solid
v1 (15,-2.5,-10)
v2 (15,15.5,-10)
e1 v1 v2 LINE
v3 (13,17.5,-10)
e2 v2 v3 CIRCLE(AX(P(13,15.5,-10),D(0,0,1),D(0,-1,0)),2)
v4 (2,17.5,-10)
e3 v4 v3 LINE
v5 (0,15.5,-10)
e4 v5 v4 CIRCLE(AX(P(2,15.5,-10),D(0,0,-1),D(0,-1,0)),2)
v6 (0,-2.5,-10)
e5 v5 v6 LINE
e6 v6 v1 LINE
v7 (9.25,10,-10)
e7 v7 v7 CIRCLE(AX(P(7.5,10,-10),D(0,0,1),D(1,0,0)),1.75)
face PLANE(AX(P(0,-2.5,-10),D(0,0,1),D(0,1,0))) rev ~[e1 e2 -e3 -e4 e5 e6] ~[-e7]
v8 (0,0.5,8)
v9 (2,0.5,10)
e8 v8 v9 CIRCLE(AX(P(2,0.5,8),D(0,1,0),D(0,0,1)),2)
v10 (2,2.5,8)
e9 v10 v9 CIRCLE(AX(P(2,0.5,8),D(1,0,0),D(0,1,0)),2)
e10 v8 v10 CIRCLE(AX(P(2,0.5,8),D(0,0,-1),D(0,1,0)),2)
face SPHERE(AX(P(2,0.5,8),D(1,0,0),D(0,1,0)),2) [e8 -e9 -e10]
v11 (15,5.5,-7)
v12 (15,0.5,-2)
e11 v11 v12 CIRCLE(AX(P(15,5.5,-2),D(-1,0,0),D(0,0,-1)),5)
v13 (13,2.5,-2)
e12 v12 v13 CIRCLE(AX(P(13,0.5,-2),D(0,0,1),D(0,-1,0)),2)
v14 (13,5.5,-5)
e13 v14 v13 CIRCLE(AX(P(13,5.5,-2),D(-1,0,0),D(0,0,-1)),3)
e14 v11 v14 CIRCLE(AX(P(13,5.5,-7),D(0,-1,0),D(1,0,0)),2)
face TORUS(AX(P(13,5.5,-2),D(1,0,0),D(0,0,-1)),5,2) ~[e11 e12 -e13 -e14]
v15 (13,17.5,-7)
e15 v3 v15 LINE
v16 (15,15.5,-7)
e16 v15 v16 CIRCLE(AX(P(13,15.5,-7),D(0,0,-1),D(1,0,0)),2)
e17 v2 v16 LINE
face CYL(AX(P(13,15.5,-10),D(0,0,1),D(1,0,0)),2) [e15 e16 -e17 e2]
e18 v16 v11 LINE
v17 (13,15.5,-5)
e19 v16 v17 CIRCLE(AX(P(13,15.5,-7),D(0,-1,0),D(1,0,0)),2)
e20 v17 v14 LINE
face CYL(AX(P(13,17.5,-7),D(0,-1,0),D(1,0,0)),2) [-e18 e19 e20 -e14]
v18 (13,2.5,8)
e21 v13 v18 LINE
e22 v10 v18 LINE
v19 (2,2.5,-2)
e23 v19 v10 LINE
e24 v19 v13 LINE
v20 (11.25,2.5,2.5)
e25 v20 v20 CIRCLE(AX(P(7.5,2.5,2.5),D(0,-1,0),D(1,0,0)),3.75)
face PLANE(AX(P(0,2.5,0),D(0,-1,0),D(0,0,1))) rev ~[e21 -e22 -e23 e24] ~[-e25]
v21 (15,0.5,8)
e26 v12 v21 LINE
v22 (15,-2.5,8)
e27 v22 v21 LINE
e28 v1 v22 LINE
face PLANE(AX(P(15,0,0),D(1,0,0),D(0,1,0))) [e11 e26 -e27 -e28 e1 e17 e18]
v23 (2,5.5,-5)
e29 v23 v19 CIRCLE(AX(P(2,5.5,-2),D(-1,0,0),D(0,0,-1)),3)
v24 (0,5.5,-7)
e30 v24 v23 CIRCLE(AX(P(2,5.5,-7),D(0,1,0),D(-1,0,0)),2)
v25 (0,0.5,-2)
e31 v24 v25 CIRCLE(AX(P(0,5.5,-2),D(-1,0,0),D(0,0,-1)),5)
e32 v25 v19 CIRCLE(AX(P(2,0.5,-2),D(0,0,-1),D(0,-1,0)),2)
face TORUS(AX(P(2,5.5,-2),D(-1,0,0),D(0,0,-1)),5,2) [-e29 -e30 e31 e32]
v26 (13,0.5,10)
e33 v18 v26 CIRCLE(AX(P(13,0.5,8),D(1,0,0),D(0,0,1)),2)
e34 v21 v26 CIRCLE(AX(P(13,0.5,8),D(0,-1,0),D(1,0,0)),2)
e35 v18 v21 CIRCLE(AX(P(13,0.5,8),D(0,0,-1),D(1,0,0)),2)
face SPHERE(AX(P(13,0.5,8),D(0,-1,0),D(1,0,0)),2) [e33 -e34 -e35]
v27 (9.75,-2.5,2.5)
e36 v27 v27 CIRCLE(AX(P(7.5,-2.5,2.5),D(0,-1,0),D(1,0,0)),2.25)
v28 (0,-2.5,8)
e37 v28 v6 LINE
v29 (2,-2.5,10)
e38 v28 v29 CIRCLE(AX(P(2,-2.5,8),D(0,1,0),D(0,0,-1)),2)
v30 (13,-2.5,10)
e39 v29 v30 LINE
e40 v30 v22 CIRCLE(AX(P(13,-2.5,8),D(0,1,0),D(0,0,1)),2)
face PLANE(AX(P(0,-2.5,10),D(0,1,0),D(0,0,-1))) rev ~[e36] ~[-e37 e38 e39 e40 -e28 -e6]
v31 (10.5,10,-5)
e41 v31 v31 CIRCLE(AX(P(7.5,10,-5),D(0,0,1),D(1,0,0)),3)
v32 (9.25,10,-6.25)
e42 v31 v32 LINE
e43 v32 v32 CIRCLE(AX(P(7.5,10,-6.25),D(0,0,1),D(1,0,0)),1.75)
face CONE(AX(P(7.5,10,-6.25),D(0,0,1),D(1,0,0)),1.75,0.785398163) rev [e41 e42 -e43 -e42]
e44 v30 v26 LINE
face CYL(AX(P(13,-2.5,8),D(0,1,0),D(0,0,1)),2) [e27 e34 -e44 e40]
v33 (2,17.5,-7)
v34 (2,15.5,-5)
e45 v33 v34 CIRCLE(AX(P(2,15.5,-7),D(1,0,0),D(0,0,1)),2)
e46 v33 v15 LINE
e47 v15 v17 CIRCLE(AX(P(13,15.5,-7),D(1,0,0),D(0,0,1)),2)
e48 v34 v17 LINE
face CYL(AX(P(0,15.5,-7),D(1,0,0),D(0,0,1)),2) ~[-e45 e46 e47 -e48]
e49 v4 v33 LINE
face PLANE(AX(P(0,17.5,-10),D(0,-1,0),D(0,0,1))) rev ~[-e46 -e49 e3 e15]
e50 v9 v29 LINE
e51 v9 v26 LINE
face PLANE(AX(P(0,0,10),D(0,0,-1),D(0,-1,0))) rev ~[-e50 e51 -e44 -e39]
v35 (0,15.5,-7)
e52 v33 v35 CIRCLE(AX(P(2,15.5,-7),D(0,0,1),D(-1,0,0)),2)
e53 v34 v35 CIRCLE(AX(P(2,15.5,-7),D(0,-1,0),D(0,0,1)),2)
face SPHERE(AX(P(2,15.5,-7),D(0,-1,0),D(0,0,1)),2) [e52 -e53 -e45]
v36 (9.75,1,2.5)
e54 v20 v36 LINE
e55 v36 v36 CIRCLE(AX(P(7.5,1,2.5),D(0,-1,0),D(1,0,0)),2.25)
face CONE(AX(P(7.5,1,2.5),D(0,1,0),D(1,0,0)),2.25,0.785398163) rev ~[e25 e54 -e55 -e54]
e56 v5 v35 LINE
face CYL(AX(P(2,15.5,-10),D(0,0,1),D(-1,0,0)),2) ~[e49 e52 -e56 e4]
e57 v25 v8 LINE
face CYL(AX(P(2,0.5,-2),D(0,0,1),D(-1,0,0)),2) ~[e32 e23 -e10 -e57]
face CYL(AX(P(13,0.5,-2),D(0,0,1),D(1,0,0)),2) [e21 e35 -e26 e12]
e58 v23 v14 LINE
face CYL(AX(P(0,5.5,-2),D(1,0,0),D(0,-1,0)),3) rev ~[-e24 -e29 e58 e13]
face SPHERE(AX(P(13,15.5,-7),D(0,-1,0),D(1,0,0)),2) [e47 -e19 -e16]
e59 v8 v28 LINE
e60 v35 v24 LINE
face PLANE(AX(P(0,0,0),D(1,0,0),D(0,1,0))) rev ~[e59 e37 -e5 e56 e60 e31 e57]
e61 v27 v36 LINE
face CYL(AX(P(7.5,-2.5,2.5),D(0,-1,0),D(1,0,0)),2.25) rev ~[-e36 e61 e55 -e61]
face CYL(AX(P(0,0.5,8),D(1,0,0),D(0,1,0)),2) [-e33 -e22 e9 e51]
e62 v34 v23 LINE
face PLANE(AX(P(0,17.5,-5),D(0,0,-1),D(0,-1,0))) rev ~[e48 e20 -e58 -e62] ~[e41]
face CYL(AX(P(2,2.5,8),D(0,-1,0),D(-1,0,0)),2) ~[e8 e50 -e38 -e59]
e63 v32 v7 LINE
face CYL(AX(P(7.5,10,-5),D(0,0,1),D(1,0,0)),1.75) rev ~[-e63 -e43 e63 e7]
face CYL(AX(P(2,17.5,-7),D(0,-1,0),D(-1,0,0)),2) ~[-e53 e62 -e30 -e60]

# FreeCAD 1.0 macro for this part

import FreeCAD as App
import Part
import Sketcher

V = App.Vector


def edges_at(feature, points):
    """Names of the edges that pass closest to the given points."""
    edges = feature.Shape.Edges
    near = lambda p: min(range(len(edges)), key=lambda i: edges[i].distToShape(Part.Vertex(*p))[0])
    return sorted({f"Edge{near(p) + 1}" for p in points})


def add_polygon(sketch, points):
    """Adds a closed chain of lines whose ends are joined by coincident constraints."""
    first, n = sketch.GeometryCount, len(points)
    for a, b in zip(points, points[1:] + points[:1]):
        sketch.addGeometry(Part.LineSegment(App.Vector(*a, 0), App.Vector(*b, 0)), False)
    for i in range(n):
        sketch.addConstraint(Sketcher.Constraint("Coincident", first + i, 2, first + (i + 1) % n, 1))

doc = App.newDocument("Part")
params = doc.addObject("Spreadsheet::Sheet", "Params")
for row, (alias, value) in enumerate([
    ("sketch1_width", "20 mm"),
    ("sketch1_width2", "5 mm"),
    ("pad1_length", "15 mm"),
    ("sketch2_diameter", "4.5 mm"),
    ("sketch3_diameter", "3.5 mm"),
    ("chamfer_size", "1.25 mm"),
    ("chamfer2_size", "1.5 mm"),
    ("fillet_radius", "3 mm"),
    ("fillet2_radius", "2 mm"),
], start=1):
    params.set(f"A{row}", alias)
    params.set(f"B{row}", "=" + value)
    params.setAlias(f"B{row}", alias)

body = doc.addObject("PartDesign::Body", "Body")

# Sketch on YZ plane
sketch1 = body.newObject("Sketcher::SketchObject", "Sketch")
sketch1.AttachmentSupport = (doc.getObject("YZ_Plane"), [""])
sketch1.MapMode = "FlatFace"
add_polygon(sketch1, [(-2, 10), (-2, -10), (18, -10), (18, -5), (2, -5), (2, 10)])  # lines 0-5
sketch1.addConstraint(Sketcher.Constraint("Vertical", 0))
sketch1.addConstraint(Sketcher.Constraint("Horizontal", 1))
sketch1.addConstraint(Sketcher.Constraint("Vertical", 2))
sketch1.addConstraint(Sketcher.Constraint("Horizontal", 3))
sketch1.addConstraint(Sketcher.Constraint("Vertical", 4))
sketch1.addConstraint(Sketcher.Constraint("Horizontal", 5))
sketch1.addConstraint(Sketcher.Constraint("Symmetric", 0, 2, 4, 2, -1, 1))
sketch1.addConstraint(Sketcher.Constraint("Equal", 1, 0))
sketch1.addConstraint(Sketcher.Constraint("Equal", 5, 2))
sketch1.addConstraint(Sketcher.Constraint("DistanceX", 1, 1, 1, 2, 20.0))
sketch1.addConstraint(Sketcher.Constraint("DistanceX", 5, 2, 5, 1, 5.0))
sketch1.setExpression("Constraints[15]", "Params.sketch1_width")
sketch1.setExpression("Constraints[16]", "Params.sketch1_width2")
pad1 = body.newObject("PartDesign::Pad", "Pad")
pad1.Profile = sketch1
pad1.setExpression("Length", "Params.pad1_length")

# Sketch on XZ plane
sketch2 = body.newObject("Sketcher::SketchObject", "Sketch001")
sketch2.AttachmentSupport = (doc.getObject("XZ_Plane"), [""])
sketch2.MapMode = "FlatFace"
sketch2.AttachmentOffset = App.Placement(V(0, 0, 2.5), App.Rotation())
sketch2.addGeometry(Part.Circle(V(7.5, 2.5, 0), V(0, 0, 1), 2.2), False)
sketch2.addConstraint(Sketcher.Constraint("Diameter", 0, 4.5))
sketch2.addConstraint(Sketcher.Constraint("DistanceX", -1, 1, 0, 3, 7.5))
sketch2.addConstraint(Sketcher.Constraint("DistanceY", -1, 1, 0, 3, 2.5))
sketch2.setExpression("Constraints[0]", "Params.sketch2_diameter")
pocket1 = body.newObject("PartDesign::Pocket", "Pocket")
pocket1.Profile = sketch2
pocket1.Type = "ThroughAll"

# Sketch on XY plane
sketch3 = body.newObject("Sketcher::SketchObject", "Sketch002")
sketch3.AttachmentSupport = (doc.getObject("XY_Plane"), [""])
sketch3.MapMode = "FlatFace"
sketch3.AttachmentOffset = App.Placement(V(0, 0, -5), App.Rotation())
sketch3.addGeometry(Part.Circle(V(7.5, 10, 0), V(0, 0, 1), 1.8), False)
sketch3.addConstraint(Sketcher.Constraint("Diameter", 0, 3.5))
sketch3.addConstraint(Sketcher.Constraint("DistanceY", -1, 1, 0, 3, 10.0))
sketch3.addConstraint(Sketcher.Constraint("DistanceX", -1, 1, 0, 3, 7.5))
sketch3.setExpression("Constraints[0]", "Params.sketch3_diameter")
pocket2 = body.newObject("PartDesign::Pocket", "Pocket001")
pocket2.Profile = sketch3
pocket2.Type = "ThroughAll"
doc.recompute()

chamfer = body.newObject("PartDesign::Chamfer", "Chamfer")
chamfer.Base = (pocket2, edges_at(pocket2, [(5.75, 10, -5)]))
chamfer.setExpression("Size", "Params.chamfer_size")
doc.recompute()

chamfer2 = body.newObject("PartDesign::Chamfer", "Chamfer001")
chamfer2.Base = (chamfer, edges_at(chamfer, [(5.25, 2.5, 2.5)]))
chamfer2.setExpression("Size", "Params.chamfer2_size")
doc.recompute()

fillet = body.newObject("PartDesign::Fillet", "Fillet")
fillet.Base = (chamfer2, edges_at(chamfer2, [(7.5, 2.5, -5)]))
fillet.setExpression("Radius", "Params.fillet_radius")
doc.recompute()

fillet2 = body.newObject("PartDesign::Fillet", "Fillet001")
fillet2.Base = (fillet, edges_at(fillet, [
    (15, 0, 10),
    (15, 11.5, -5),
    (15, 2.5, 4),
    (15, 17.5, -7.5),
    (7.5, 2.5, 10),
    (0, 11.5, -5),
    (0, 2.5, 4),
    (7.5, 17.5, -5),
    (0, 0, 10),
    (0, 17.5, -7.5),
]))
fillet2.setExpression("Radius", "Params.fillet2_radius")

doc.recompute()
